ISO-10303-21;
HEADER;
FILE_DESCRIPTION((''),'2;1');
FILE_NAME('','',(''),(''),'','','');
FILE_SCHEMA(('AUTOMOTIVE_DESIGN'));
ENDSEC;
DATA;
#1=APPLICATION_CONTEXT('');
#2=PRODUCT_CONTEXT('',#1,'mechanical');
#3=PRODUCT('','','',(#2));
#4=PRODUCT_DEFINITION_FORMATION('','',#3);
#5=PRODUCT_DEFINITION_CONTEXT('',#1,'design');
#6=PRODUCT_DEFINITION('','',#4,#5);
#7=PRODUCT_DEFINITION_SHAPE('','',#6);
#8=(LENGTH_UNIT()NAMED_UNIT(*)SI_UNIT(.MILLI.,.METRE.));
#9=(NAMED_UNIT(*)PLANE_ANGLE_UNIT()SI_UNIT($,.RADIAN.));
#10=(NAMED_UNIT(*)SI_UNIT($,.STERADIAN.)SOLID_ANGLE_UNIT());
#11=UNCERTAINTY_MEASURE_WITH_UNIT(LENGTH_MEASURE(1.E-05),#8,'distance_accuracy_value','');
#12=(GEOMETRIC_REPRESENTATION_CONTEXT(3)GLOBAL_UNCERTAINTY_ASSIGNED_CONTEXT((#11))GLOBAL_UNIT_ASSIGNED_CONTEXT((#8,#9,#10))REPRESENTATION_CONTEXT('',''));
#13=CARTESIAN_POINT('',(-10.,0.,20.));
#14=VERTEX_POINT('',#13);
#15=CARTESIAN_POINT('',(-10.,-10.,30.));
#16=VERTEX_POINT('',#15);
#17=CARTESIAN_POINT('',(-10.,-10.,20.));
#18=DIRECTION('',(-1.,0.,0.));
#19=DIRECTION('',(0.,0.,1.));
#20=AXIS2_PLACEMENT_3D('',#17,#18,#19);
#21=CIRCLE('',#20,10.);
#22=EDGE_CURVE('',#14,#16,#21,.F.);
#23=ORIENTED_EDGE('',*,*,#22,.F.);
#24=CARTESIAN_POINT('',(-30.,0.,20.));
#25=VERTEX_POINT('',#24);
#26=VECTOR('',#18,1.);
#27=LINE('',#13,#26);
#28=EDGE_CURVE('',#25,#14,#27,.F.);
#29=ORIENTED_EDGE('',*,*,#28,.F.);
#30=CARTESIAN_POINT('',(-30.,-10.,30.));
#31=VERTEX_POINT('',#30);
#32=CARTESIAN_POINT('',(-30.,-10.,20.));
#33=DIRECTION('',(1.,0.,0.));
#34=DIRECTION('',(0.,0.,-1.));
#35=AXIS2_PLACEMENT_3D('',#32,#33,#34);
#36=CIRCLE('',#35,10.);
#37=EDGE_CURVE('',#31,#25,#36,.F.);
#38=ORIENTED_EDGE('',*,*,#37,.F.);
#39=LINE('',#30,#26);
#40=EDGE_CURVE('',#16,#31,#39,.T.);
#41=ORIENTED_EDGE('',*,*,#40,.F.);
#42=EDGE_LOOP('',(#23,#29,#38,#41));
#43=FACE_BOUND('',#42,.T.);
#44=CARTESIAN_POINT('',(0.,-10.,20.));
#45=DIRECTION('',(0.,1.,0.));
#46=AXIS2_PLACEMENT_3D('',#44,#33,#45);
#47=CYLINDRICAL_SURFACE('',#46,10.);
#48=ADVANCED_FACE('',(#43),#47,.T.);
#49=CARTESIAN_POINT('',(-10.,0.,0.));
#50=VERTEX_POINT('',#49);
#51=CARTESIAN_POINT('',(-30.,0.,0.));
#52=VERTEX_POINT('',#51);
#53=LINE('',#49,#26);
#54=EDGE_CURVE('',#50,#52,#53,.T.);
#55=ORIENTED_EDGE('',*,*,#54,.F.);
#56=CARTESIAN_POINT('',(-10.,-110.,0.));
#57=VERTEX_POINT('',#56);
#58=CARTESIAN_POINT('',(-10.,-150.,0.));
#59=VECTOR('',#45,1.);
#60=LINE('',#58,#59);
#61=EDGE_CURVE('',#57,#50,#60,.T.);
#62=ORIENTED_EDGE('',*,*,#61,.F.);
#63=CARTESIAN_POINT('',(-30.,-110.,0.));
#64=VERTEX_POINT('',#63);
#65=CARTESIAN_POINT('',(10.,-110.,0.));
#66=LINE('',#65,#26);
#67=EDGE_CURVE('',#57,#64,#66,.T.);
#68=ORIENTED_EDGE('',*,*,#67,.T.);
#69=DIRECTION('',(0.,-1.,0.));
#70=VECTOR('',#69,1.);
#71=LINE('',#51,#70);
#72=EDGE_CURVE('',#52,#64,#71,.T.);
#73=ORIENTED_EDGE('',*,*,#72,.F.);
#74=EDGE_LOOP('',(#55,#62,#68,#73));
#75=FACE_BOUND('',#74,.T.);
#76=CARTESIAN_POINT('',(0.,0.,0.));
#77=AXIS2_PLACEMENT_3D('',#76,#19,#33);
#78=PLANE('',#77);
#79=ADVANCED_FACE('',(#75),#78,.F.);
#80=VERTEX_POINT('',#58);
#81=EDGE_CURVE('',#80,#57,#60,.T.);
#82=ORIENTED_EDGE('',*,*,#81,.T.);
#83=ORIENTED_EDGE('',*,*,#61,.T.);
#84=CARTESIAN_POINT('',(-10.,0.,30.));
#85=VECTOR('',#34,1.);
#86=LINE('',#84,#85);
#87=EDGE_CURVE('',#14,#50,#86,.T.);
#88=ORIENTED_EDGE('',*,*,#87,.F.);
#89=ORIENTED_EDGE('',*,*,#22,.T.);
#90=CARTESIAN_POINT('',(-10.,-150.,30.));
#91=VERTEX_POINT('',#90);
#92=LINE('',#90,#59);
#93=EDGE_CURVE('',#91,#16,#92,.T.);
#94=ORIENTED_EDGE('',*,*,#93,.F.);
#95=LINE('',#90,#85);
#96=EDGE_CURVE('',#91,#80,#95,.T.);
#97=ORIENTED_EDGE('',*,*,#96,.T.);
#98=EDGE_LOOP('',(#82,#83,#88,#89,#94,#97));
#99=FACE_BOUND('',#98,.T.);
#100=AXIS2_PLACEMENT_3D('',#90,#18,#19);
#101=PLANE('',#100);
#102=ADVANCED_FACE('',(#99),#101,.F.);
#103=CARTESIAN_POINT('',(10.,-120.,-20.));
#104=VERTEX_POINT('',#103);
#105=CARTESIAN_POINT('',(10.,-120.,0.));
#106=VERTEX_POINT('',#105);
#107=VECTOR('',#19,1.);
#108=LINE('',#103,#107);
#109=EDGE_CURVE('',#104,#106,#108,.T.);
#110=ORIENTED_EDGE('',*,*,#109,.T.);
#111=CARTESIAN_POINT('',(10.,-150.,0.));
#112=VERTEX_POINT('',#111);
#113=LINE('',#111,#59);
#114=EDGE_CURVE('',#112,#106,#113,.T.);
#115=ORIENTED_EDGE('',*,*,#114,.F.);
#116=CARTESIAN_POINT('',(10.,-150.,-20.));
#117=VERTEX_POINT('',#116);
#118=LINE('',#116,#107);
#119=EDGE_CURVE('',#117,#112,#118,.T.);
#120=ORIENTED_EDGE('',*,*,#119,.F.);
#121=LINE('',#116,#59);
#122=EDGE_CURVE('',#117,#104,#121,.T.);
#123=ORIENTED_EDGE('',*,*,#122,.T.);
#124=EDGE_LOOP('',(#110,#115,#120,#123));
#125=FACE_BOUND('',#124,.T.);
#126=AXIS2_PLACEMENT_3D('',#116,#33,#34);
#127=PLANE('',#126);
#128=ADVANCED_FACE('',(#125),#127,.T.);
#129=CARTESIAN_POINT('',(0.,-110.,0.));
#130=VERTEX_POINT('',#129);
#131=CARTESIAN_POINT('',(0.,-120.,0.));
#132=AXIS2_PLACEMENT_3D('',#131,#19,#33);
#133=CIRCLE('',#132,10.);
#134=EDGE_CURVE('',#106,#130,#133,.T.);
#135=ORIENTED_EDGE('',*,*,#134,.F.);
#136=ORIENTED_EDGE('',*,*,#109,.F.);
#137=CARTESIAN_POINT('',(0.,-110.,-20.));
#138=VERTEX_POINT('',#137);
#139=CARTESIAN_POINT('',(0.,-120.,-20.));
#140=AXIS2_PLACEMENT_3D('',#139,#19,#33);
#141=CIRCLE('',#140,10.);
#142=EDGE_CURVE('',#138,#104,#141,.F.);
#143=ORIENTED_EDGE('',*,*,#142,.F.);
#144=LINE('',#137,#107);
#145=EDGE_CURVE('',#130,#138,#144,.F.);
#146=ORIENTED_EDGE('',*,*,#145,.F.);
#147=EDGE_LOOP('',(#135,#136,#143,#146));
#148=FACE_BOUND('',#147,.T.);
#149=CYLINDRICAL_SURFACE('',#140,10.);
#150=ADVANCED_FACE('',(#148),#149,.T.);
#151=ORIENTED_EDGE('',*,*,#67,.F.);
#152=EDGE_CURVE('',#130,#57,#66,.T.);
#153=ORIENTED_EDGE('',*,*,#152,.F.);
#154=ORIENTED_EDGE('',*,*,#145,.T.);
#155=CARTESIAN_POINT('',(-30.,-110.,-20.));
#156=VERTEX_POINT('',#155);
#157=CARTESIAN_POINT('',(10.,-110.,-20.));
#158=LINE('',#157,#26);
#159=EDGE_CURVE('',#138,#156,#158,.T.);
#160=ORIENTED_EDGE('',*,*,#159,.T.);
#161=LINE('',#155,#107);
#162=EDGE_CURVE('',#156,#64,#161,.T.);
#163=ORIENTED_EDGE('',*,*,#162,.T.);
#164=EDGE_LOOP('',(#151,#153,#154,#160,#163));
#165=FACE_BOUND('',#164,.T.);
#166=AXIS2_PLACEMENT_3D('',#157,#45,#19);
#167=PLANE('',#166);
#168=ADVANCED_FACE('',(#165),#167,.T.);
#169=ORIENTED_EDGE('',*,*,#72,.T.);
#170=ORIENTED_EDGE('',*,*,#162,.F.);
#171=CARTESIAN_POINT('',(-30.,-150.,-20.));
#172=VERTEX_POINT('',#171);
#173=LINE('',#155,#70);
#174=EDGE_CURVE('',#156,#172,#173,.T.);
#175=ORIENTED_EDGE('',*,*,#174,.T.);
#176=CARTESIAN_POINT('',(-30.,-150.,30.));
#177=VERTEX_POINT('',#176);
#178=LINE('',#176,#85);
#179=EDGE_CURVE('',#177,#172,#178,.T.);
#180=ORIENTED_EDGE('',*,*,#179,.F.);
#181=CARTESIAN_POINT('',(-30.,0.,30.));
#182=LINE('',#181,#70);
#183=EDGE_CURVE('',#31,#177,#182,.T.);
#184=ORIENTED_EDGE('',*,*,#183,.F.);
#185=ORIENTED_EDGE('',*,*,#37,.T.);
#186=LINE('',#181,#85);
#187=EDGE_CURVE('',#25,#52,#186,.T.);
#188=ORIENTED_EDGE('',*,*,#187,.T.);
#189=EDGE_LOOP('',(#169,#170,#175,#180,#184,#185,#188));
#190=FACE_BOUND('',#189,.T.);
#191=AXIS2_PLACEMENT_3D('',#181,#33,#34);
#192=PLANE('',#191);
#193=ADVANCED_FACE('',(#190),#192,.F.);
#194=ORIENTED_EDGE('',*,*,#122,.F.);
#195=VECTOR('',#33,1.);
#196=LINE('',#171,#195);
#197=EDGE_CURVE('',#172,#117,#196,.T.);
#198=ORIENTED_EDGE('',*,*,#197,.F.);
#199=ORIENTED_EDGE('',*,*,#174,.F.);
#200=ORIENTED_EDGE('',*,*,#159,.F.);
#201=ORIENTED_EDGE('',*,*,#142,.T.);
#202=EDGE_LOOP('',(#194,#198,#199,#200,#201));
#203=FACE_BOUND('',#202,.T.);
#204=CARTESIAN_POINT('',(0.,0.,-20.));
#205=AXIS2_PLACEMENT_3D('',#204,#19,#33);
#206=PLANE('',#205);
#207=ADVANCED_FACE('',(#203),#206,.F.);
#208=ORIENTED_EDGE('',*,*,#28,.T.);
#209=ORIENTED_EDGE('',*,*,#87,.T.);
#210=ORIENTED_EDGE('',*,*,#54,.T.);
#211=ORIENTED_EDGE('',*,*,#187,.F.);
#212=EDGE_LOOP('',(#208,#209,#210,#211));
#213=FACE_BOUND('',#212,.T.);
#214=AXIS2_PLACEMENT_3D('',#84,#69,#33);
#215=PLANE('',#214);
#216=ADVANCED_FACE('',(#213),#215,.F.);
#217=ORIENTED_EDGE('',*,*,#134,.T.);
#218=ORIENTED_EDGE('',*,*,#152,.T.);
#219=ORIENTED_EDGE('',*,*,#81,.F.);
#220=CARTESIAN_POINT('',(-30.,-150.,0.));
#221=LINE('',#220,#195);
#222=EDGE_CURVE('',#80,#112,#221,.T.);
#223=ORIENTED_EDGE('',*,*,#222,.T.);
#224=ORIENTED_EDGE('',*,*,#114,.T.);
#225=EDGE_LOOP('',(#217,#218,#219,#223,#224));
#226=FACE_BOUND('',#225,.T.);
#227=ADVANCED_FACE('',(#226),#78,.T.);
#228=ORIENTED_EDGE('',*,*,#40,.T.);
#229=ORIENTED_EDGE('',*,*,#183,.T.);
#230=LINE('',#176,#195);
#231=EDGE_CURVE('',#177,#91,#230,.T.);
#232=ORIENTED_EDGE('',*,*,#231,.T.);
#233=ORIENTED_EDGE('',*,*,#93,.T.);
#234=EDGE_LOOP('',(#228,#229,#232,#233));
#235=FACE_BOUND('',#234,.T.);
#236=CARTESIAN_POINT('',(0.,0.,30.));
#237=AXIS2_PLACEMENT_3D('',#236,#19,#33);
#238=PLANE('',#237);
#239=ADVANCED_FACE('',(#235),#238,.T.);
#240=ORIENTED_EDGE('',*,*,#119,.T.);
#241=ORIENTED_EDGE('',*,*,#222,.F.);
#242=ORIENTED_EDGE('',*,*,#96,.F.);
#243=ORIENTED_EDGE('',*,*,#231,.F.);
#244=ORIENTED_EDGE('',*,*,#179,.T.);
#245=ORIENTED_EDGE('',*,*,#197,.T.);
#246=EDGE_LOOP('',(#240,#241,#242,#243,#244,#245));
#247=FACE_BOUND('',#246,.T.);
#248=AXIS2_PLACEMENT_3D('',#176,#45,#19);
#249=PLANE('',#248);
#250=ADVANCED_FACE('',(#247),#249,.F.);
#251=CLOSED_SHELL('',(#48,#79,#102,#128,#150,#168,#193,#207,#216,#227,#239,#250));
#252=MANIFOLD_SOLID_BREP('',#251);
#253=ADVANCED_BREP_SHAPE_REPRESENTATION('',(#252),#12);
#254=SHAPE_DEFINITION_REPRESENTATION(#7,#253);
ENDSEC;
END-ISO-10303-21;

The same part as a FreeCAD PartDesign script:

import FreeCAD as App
import Part
import Sketcher
from FreeCAD import Vector
Q = App.Units.Quantity


def edges_at(feature, points):
    """Names of the edges that pass closest to the given points."""
    edges = feature.Shape.Edges
    near = lambda p: min(range(len(edges)), key=lambda i: edges[i].distToShape(Part.Vertex(*p))[0])
    return sorted({f"Edge{near(p) + 1}" for p in points})


def add_polygon(sketch, points):
    """Adds a closed chain of lines whose ends are joined by coincident constraints."""
    first, n = sketch.GeometryCount, len(points)
    for a, b in zip(points, points[1:] + points[:1]):
        sketch.addGeometry(Part.LineSegment(App.Vector(*a, 0), App.Vector(*b, 0)), False)
    for i in range(n):
        sketch.addConstraint(Sketcher.Constraint("Coincident", first + i, 2, first + (i + 1) % n, 1))

doc = App.newDocument("Part")
body = doc.addObject("PartDesign::Body", "Body")

sketch1 = body.newObject("Sketcher::SketchObject", "Sketch")
sketch1.AttachmentSupport = (doc.getObject("XY_Plane"), [""])
sketch1.MapMode = "FlatFace"
add_polygon(sketch1, [(-30, 0), (-30, -150), (-10, -150), (-10, 0)])
sketch1.addConstraint([
    Sketcher.Constraint("Vertical", 0),
    Sketcher.Constraint("Horizontal", 1),
    Sketcher.Constraint("Vertical", 2),
    Sketcher.Constraint("Horizontal", 3),
    Sketcher.Constraint("PointOnObject", 2, 2, -1),
    Sketcher.Constraint("DistanceX", 1, 1, 1, 2, Q("20 mm")),
    Sketcher.Constraint("DistanceY", 0, 2, 0, 1, Q("150 mm")),
    Sketcher.Constraint("DistanceX", 0, 2, -1, 1, Q("30 mm")),
])
pad1 = body.newObject("PartDesign::Pad", "Pad")
pad1.Profile = sketch1
pad1.Length = 30

sketch2 = body.newObject("Sketcher::SketchObject", "Sketch001")
sketch2.AttachmentSupport = (doc.getObject("XY_Plane"), [""])
sketch2.MapMode = "FlatFace"
add_polygon(sketch2, [(-30, -110), (-30, -150), (10, -150), (10, -110)])
sketch2.addConstraint([
    Sketcher.Constraint("Vertical", 0),
    Sketcher.Constraint("Horizontal", 1),
    Sketcher.Constraint("Vertical", 2),
    Sketcher.Constraint("Horizontal", 3),
    Sketcher.Constraint("Equal", 3, 0),
    Sketcher.Constraint("DistanceX", 1, 1, 1, 2, Q("40 mm")),
    Sketcher.Constraint("DistanceX", 0, 2, -1, 1, Q("30 mm")),
    Sketcher.Constraint("DistanceY", 0, 2, -1, 1, Q("150 mm")),
])
pad2 = body.newObject("PartDesign::Pad", "Pad001")
pad2.Profile = sketch2
pad2.Length = 20
pad2.Reversed = True
doc.recompute()

fillet = body.newObject("PartDesign::Fillet", "Fillet")
fillet.Base = (pad2, edges_at(pad2, [(10, -110, -10), (-20, 0, 30)]))
fillet.Radius = 10

doc.recompute()
